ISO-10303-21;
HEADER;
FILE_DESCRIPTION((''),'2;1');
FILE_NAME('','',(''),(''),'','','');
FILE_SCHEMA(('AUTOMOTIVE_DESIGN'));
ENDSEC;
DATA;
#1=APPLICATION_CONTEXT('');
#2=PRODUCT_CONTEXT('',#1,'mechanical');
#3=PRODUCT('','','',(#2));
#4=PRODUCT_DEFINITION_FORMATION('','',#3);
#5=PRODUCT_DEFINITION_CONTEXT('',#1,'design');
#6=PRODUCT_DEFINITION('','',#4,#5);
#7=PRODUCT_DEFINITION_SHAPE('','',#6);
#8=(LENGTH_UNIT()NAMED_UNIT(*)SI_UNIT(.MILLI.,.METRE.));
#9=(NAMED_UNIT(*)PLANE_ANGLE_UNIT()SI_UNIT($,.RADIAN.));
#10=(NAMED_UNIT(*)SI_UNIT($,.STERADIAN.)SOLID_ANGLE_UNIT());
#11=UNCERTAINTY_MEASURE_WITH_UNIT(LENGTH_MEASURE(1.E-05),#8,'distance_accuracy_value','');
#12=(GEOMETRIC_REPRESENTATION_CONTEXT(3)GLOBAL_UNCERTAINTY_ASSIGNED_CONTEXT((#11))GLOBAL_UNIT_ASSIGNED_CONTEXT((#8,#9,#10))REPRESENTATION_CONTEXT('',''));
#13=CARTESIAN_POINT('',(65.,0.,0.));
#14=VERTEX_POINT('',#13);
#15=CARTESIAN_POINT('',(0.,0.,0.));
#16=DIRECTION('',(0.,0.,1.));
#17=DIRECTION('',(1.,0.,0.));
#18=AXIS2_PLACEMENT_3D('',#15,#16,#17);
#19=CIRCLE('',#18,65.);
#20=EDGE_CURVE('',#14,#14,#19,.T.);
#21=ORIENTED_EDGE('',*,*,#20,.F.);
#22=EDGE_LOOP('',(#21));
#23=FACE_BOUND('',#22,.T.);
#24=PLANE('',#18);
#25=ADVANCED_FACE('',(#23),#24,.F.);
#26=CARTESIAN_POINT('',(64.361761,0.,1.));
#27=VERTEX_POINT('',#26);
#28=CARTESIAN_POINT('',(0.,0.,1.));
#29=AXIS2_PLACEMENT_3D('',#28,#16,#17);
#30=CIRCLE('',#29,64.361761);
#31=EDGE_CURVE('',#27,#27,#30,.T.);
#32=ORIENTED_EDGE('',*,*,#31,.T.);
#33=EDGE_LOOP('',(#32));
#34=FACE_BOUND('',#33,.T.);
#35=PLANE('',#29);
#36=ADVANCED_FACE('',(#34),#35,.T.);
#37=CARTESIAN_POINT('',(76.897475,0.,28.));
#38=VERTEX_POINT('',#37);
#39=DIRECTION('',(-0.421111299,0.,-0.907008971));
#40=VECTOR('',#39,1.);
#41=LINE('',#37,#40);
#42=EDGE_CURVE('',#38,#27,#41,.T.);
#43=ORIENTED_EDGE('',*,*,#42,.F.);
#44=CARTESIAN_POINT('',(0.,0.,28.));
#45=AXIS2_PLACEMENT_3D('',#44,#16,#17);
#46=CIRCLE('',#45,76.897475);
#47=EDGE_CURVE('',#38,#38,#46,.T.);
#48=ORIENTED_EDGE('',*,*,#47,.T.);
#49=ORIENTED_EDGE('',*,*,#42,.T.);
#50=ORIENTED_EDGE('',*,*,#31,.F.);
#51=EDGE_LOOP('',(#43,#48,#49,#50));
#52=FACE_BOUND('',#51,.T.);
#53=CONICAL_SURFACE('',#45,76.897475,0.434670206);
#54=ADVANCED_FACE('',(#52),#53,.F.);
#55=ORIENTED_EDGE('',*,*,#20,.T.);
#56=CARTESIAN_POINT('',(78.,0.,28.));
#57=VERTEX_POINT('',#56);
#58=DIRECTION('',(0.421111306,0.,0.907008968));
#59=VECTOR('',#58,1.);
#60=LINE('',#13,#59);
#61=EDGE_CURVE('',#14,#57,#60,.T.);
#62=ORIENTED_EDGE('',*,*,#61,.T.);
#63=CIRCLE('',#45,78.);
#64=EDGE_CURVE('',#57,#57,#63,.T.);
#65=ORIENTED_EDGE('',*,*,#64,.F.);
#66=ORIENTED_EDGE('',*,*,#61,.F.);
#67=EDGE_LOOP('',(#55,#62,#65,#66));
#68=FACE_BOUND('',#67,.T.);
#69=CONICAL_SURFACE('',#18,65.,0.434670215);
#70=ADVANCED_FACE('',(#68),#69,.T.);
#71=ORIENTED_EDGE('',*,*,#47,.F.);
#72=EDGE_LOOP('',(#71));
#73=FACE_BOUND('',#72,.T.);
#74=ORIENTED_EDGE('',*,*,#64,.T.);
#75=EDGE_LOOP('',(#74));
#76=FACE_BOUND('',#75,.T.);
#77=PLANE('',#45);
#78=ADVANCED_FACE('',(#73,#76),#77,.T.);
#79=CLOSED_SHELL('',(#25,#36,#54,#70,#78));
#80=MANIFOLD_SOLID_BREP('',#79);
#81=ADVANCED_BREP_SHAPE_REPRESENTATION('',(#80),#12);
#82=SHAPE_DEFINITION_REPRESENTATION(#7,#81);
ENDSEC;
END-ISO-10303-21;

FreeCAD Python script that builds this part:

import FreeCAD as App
import Part
import Sketcher
Q = App.Units.Quantity

doc = App.newDocument("Part")
params = doc.addObject("Spreadsheet::Sheet", "Params")
for row, (alias, value) in enumerate([
    ("sketch1_width", "65 mm"),
    ("sketch1_height", "1 mm"),
    ("revolution_angle", "360 deg"),
], start=1):
    params.set(f"A{row}", alias)
    params.set(f"B{row}", "=" + value)
    params.setAlias(f"B{row}", alias)

body = doc.addObject("PartDesign::Body", "Body")

sketch1 = body.newObject("Sketcher::SketchObject", "Sketch")
sketch1.AttachmentSupport = (doc.getObject("XZ_Plane"), [""])
sketch1.MapMode = "FlatFace"
sketch1.addGeometry([
    Part.LineSegment(App.Vector(0, 0, 0), App.Vector(65, 0, 0)),
    Part.LineSegment(App.Vector(65, 0, 0), App.Vector(78, 28, 0)),
    Part.LineSegment(App.Vector(78, 28, 0), App.Vector(76.9, 28, 0)),
    Part.LineSegment(App.Vector(76.9, 28, 0), App.Vector(64.4, 1, 0)),
    Part.LineSegment(App.Vector(64.4, 1, 0), App.Vector(0, 1, 0)),
    Part.LineSegment(App.Vector(0, 1, 0), App.Vector(0, 0, 0)),
], False)
sketch1.addConstraint([
    Sketcher.Constraint("Coincident", 0, 2, 1, 1),
    Sketcher.Constraint("Coincident", 1, 2, 2, 1),
    Sketcher.Constraint("Coincident", 2, 2, 3, 1),
    Sketcher.Constraint("Coincident", 3, 2, 4, 1),
    Sketcher.Constraint("Coincident", 4, 2, 5, 1),
    Sketcher.Constraint("Coincident", 5, 2, 0, 1),
    Sketcher.Constraint("Horizontal", 0),
    Sketcher.Constraint("Horizontal", 2),
    Sketcher.Constraint("Horizontal", 4),
    Sketcher.Constraint("Vertical", 5),
    Sketcher.Constraint("Coincident", 5, 2, -1, 1),
    Sketcher.Constraint("Parallel", 1, 3),
    Sketcher.Constraint("DistanceX", 0, 1, 0, 2, Q("65 mm")),
    Sketcher.Constraint("DistanceY", 5, 2, 5, 1, Q("1 mm")),
    Sketcher.Constraint("DistanceX", -1, 1, 1, 2, Q("78 mm")),
    Sketcher.Constraint("DistanceY", -1, 1, 1, 2, Q("28 mm")),
    Sketcher.Constraint("DistanceX", 4, 2, 4, 1, Q("64.361761 mm")),
])
sketch1.setExpression("Constraints[12]", "Params.sketch1_width")
sketch1.setExpression("Constraints[13]", "Params.sketch1_height")
revolution = body.newObject("PartDesign::Revolution", "Revolution")
revolution.Profile = sketch1
revolution.ReferenceAxis = (sketch1, ["V_Axis"])
revolution.setExpression("Angle", "Params.revolution_angle")

doc.recompute()
